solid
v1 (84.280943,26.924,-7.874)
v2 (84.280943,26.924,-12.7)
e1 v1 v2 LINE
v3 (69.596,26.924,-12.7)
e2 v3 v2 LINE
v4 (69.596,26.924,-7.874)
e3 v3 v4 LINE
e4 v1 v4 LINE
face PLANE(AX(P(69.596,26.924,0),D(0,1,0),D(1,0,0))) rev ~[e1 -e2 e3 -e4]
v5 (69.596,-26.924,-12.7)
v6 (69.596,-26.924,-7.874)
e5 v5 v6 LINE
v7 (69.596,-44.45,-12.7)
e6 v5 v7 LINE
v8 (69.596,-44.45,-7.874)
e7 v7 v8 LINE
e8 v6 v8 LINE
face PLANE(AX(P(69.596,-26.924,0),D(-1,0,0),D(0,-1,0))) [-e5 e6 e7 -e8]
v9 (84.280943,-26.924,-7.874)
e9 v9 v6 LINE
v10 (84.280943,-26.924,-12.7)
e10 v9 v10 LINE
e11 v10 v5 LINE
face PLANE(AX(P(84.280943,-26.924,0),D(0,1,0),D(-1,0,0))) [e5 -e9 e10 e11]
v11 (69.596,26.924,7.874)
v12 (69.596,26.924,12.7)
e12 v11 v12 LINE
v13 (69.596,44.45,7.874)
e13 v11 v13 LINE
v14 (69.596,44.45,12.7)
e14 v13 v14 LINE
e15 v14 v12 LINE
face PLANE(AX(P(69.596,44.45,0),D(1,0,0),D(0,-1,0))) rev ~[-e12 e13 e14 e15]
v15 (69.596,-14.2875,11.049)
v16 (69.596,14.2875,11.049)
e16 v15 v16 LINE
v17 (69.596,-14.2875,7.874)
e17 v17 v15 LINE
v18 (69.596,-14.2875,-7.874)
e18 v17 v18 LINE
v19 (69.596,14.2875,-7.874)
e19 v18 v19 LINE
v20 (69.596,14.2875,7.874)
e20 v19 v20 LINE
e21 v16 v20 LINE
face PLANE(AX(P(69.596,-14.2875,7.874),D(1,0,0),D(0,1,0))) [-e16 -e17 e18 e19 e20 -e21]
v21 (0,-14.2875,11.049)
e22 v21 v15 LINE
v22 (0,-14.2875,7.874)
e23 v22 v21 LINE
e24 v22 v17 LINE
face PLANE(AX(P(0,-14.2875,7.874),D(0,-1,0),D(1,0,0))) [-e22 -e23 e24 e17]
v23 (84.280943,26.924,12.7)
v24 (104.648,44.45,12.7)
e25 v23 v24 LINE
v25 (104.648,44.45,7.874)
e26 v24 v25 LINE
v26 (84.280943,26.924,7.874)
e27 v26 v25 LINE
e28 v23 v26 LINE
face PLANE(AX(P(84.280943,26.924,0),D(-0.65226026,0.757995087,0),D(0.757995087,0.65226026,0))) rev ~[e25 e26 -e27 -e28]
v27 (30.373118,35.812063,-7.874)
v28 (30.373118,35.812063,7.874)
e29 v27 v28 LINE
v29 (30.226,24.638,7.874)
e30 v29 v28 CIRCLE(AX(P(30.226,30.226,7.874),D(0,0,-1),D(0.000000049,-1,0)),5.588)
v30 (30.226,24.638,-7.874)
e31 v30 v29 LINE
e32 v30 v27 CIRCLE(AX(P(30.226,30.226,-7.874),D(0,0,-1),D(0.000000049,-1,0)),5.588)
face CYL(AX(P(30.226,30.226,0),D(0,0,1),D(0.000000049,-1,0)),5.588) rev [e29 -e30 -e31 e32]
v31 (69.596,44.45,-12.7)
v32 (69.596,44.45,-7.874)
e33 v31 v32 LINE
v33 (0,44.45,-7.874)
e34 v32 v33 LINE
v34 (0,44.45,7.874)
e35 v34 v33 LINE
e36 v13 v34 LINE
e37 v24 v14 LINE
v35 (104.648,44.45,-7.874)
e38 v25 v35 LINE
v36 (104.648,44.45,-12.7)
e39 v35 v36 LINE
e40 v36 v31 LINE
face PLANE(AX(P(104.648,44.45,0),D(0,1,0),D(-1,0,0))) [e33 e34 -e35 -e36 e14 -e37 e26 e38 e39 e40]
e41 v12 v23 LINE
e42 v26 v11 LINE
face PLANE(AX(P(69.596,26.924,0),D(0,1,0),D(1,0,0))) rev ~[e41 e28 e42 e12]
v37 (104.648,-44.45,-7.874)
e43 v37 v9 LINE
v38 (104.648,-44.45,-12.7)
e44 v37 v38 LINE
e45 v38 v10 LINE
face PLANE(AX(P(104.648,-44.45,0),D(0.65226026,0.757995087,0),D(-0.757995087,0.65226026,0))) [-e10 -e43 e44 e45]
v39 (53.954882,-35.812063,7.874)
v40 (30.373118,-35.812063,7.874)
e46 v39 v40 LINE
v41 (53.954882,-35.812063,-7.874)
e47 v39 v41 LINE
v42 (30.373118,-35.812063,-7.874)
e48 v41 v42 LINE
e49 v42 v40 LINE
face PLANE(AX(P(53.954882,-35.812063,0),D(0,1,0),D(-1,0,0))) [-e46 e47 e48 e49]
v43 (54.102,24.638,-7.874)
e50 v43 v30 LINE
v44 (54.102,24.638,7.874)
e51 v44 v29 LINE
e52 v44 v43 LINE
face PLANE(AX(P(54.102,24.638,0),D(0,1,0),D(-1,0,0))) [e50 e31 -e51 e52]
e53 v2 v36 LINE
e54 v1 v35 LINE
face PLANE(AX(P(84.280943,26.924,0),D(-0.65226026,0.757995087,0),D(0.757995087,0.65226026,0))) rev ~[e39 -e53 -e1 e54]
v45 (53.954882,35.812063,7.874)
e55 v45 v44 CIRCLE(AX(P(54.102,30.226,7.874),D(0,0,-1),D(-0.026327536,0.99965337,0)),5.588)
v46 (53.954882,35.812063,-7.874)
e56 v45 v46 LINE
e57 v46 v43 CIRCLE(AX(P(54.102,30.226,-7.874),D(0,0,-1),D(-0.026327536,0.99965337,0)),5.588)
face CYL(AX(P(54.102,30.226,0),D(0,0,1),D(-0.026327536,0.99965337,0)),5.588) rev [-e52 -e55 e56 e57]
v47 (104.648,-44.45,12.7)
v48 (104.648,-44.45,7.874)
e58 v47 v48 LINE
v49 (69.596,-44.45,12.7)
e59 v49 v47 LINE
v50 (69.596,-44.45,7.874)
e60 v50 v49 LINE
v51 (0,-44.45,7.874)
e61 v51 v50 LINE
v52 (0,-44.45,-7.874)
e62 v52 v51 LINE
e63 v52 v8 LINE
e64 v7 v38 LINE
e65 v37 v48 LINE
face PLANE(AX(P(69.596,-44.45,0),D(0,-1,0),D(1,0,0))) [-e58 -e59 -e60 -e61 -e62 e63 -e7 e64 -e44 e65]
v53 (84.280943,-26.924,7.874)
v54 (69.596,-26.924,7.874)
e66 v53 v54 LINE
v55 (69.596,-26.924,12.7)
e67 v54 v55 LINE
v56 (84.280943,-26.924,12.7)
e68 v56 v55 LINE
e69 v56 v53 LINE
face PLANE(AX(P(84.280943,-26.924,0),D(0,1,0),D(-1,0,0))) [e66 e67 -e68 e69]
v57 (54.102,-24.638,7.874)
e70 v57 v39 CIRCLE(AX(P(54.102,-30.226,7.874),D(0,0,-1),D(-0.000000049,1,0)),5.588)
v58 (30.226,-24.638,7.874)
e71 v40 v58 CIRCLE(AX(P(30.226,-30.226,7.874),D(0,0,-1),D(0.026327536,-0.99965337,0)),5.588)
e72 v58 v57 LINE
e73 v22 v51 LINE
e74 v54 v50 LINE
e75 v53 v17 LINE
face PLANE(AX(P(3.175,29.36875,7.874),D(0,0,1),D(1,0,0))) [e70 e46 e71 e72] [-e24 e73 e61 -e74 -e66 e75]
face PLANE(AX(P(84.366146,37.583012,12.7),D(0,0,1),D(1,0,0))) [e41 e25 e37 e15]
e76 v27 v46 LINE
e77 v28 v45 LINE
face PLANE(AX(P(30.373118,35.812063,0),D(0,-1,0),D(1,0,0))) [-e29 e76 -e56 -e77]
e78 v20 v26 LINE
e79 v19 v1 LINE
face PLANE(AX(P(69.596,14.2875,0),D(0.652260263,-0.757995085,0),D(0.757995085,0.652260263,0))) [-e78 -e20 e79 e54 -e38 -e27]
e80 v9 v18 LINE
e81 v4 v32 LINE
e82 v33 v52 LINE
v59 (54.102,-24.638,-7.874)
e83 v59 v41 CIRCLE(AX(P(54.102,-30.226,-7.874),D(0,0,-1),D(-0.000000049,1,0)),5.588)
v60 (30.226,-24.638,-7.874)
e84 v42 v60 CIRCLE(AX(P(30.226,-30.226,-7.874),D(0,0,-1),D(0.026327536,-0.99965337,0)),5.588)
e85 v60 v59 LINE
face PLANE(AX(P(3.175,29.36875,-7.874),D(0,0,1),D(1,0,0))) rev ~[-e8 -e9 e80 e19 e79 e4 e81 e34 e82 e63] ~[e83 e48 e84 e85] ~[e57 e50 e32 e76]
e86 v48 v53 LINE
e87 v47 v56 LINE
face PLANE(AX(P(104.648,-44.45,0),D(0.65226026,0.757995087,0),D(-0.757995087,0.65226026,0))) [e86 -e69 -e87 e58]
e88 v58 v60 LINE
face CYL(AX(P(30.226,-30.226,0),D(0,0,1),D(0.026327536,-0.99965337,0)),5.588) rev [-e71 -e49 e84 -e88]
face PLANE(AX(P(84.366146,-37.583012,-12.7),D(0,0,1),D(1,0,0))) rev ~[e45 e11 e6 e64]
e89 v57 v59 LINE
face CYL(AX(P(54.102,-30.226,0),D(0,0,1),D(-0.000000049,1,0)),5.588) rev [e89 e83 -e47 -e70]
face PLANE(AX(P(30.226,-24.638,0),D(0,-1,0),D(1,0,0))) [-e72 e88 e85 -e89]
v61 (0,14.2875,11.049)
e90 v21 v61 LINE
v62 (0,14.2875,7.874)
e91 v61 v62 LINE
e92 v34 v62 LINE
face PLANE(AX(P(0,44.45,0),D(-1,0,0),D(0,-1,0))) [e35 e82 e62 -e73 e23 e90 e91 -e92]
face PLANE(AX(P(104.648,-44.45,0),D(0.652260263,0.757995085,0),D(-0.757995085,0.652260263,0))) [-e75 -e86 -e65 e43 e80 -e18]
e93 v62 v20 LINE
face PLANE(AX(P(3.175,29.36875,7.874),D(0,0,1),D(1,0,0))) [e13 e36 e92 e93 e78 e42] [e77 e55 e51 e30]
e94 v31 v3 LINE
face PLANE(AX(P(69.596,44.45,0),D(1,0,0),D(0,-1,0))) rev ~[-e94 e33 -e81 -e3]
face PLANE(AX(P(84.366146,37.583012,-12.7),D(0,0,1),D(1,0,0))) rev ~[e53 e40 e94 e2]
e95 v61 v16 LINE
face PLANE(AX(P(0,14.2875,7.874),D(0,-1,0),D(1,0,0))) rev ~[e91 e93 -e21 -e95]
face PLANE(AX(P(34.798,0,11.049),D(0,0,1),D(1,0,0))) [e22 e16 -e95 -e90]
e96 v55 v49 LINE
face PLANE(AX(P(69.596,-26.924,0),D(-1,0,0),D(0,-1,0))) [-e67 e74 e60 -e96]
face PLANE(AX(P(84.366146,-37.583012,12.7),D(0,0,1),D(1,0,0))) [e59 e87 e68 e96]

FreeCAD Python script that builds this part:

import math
import FreeCAD as App
import Part
import Sketcher

V = App.Vector
Q = App.Units.Quantity


def add_polygon(sketch, points):
    """Adds a closed chain of lines whose ends are joined by coincident constraints."""
    first, n = sketch.GeometryCount, len(points)
    for a, b in zip(points, points[1:] + points[:1]):
        sketch.addGeometry(Part.LineSegment(App.Vector(*a, 0), App.Vector(*b, 0)), False)
    for i in range(n):
        sketch.addConstraint(Sketcher.Constraint("Coincident", first + i, 2, first + (i + 1) % n, 1))

doc = App.newDocument("Part")
body = doc.addObject("PartDesign::Body", "Body")

# Sketch on XY plane
sketch1 = body.newObject("Sketcher::SketchObject", "Sketch")
sketch1.AttachmentSupport = (doc.getObject("XY_Plane"), [""])
sketch1.MapMode = "FlatFace"
add_polygon(sketch1, [(0, 44.45), (0, -44.45), (104.648, -44.45), (69.596, -14.2875), (69.596, 14.2875), (104.648, 44.45)])  # lines 0-5
sketch1.addGeometry(Part.LineSegment(V(53.954882, -35.812063, 0), V(30.373118, -35.812063, 0)), False)  # 6
sketch1.addGeometry(Part.ArcOfCircle(Part.Circle(V(30.226, -30.226, 0), V(0, 0, 1), 5.588), math.radians(89.999997), math.radians(271.508631)), False)  # 7
sketch1.addGeometry(Part.LineSegment(V(30.226, -24.638, 0), V(54.102, -24.638, 0)), False)  # 8
sketch1.addGeometry(Part.ArcOfCircle(Part.Circle(V(54.102, -30.226, 0), V(0, 0, 1), 5.588), math.radians(-91.508631), math.radians(90.000003)), False)  # 9
sketch1.addGeometry(Part.LineSegment(V(54.102, 24.638, 0), V(30.226, 24.638, 0)), False)  # 10
sketch1.addGeometry(Part.ArcOfCircle(Part.Circle(V(30.226, 30.226, 0), V(0, 0, 1), 5.588), math.radians(88.491369), math.radians(270.000003)), False)  # 11
sketch1.addGeometry(Part.LineSegment(V(30.373118, 35.812063, 0), V(53.954882, 35.812063, 0)), False)  # 12
sketch1.addGeometry(Part.ArcOfCircle(Part.Circle(V(54.102, 30.226, 0), V(0, 0, 1), 5.588), math.radians(-90.000003), math.radians(91.508631)), False)  # 13
sketch1.addConstraint(Sketcher.Constraint("Coincident", 6, 2, 7, 2))
sketch1.addConstraint(Sketcher.Constraint("Tangent", 7, 1, 8, 1))
sketch1.addConstraint(Sketcher.Constraint("Tangent", 8, 2, 9, 2))
sketch1.addConstraint(Sketcher.Constraint("Coincident", 9, 1, 6, 1))
sketch1.addConstraint(Sketcher.Constraint("Tangent", 10, 2, 11, 2))
sketch1.addConstraint(Sketcher.Constraint("Coincident", 11, 1, 12, 1))
sketch1.addConstraint(Sketcher.Constraint("Coincident", 12, 2, 13, 2))
sketch1.addConstraint(Sketcher.Constraint("Tangent", 13, 1, 10, 1))
sketch1.addConstraint(Sketcher.Constraint("Vertical", 0))
sketch1.addConstraint(Sketcher.Constraint("Horizontal", 1))
sketch1.addConstraint(Sketcher.Constraint("Vertical", 3))
sketch1.addConstraint(Sketcher.Constraint("Horizontal", 5))
sketch1.addConstraint(Sketcher.Constraint("Horizontal", 6))
sketch1.addConstraint(Sketcher.Constraint("Horizontal", 8))
sketch1.addConstraint(Sketcher.Constraint("Horizontal", 10))
sketch1.addConstraint(Sketcher.Constraint("Horizontal", 12))
sketch1.addConstraint(Sketcher.Constraint("Equal", 7, 9))
sketch1.addConstraint(Sketcher.Constraint("Equal", 9, 11))
sketch1.addConstraint(Sketcher.Constraint("Equal", 11, 13))
sketch1.addConstraint(Sketcher.Constraint("Symmetric", 0, 2, 5, 2, -1, 1))
sketch1.addConstraint(Sketcher.Constraint("Symmetric", 7, 3, 11, 3, -1))
sketch1.addConstraint(Sketcher.Constraint("Symmetric", 9, 1, 12, 2, -1))
sketch1.addConstraint(Sketcher.Constraint("Vertical", 1, 2, 4, 2))
sketch1.addConstraint(Sketcher.Constraint("Equal", 2, 4))
sketch1.addConstraint(Sketcher.Constraint("Radius", 7, Q("0.22 in")))
sketch1.addConstraint(Sketcher.Constraint("DistanceY", 0, 2, 0, 1, Q("3.5 in")))
sketch1.addConstraint(Sketcher.Constraint("DistanceX", 1, 1, 1, 2, Q("4.12 in")))
sketch1.addConstraint(Sketcher.Constraint("DistanceX", 8, 1, 8, 2, Q("0.94 in")))
sketch1.addConstraint(Sketcher.Constraint("DistanceY", 3, 1, 3, 2, Q("1.125 in")))
sketch1.addConstraint(Sketcher.Constraint("DistanceX", -1, 1, 7, 3, Q("1.19 in")))
sketch1.addConstraint(Sketcher.Constraint("DistanceY", 7, 3, -1, 1, Q("1.19 in")))
sketch1.addConstraint(Sketcher.Constraint("DistanceX", -1, 1, 2, 2, Q("2.74 in")))
sketch1.addConstraint(Sketcher.Constraint("DistanceX", 6, 2, 6, 1, Q("23.581764 mm")))
pad1 = body.newObject("PartDesign::Pad", "Pad")
pad1.Profile = sketch1
pad1.Length = Q("0.62 in")
pad1.Midplane = True

# Sketch on XY plane
sketch2 = body.newObject("Sketcher::SketchObject", "Sketch001")
sketch2.AttachmentSupport = (doc.getObject("XY_Plane"), [""])
sketch2.MapMode = "FlatFace"
sketch2.AttachmentOffset = App.Placement(V(0, 0, 0.31 * 25.4), App.Rotation())
add_polygon(sketch2, [(0, 14), (0, -14), (70, -14), (70, 14)])  # lines 0-3
sketch2.addConstraint(Sketcher.Constraint("Vertical", 0))
sketch2.addConstraint(Sketcher.Constraint("Horizontal", 1))
sketch2.addConstraint(Sketcher.Constraint("Vertical", 2))
sketch2.addConstraint(Sketcher.Constraint("Horizontal", 3))
sketch2.addConstraint(Sketcher.Constraint("Symmetric", 0, 2, 3, 2, -1, 1))
sketch2.addConstraint(Sketcher.Constraint("DistanceX", 1, 1, 1, 2, Q("2.74 in")))
sketch2.addConstraint(Sketcher.Constraint("DistanceY", 0, 2, 0, 1, Q("1.125 in")))
pad2 = body.newObject("PartDesign::Pad", "Pad001")
pad2.Profile = sketch2
pad2.Length = Q("0.25 in")
pad2.Midplane = True

# Sketch on XY plane
sketch3 = body.newObject("Sketcher::SketchObject", "Sketch002")
sketch3.AttachmentSupport = (doc.getObject("XY_Plane"), [""])
sketch3.MapMode = "FlatFace"
add_polygon(sketch3, [(105, 44), (70, 44), (70, 27), (84, 27)])  # lines 0-3
add_polygon(sketch3, [(84, -27), (70, -27), (70, -44), (105, -44)])  # lines 4-7
sketch3.addConstraint(Sketcher.Constraint("Horizontal", 0))
sketch3.addConstraint(Sketcher.Constraint("Vertical", 1))
sketch3.addConstraint(Sketcher.Constraint("Horizontal", 2))
sketch3.addConstraint(Sketcher.Constraint("Horizontal", 4))
sketch3.addConstraint(Sketcher.Constraint("Vertical", 5))
sketch3.addConstraint(Sketcher.Constraint("Horizontal", 6))
sketch3.addConstraint(Sketcher.Constraint("Symmetric", 1, 2, 4, 2, -1))
sketch3.addConstraint(Sketcher.Constraint("Symmetric", 3, 2, 6, 2, -1))
sketch3.addConstraint(Sketcher.Constraint("Vertical", 2, 2, 7, 2))
sketch3.addConstraint(Sketcher.Constraint("DistanceX", 0, 2, 0, 1, Q("1.38 in")))
sketch3.addConstraint(Sketcher.Constraint("DistanceY", 1, 2, 1, 1, Q("0.69 in")))
sketch3.addConstraint(Sketcher.Constraint("DistanceY", 5, 2, 0, 2, Q("3.5 in")))
sketch3.addConstraint(Sketcher.Constraint("DistanceX", -1, 1, 0, 2, Q("2.74 in")))
sketch3.addConstraint(Sketcher.Constraint("DistanceX", 2, 1, 2, 2, Q("14.684943 mm")))
pad3 = body.newObject("PartDesign::Pad", "Pad002")
pad3.Profile = sketch3
pad3.Length = Q("1 in")
pad3.Midplane = True

doc.recompute()
